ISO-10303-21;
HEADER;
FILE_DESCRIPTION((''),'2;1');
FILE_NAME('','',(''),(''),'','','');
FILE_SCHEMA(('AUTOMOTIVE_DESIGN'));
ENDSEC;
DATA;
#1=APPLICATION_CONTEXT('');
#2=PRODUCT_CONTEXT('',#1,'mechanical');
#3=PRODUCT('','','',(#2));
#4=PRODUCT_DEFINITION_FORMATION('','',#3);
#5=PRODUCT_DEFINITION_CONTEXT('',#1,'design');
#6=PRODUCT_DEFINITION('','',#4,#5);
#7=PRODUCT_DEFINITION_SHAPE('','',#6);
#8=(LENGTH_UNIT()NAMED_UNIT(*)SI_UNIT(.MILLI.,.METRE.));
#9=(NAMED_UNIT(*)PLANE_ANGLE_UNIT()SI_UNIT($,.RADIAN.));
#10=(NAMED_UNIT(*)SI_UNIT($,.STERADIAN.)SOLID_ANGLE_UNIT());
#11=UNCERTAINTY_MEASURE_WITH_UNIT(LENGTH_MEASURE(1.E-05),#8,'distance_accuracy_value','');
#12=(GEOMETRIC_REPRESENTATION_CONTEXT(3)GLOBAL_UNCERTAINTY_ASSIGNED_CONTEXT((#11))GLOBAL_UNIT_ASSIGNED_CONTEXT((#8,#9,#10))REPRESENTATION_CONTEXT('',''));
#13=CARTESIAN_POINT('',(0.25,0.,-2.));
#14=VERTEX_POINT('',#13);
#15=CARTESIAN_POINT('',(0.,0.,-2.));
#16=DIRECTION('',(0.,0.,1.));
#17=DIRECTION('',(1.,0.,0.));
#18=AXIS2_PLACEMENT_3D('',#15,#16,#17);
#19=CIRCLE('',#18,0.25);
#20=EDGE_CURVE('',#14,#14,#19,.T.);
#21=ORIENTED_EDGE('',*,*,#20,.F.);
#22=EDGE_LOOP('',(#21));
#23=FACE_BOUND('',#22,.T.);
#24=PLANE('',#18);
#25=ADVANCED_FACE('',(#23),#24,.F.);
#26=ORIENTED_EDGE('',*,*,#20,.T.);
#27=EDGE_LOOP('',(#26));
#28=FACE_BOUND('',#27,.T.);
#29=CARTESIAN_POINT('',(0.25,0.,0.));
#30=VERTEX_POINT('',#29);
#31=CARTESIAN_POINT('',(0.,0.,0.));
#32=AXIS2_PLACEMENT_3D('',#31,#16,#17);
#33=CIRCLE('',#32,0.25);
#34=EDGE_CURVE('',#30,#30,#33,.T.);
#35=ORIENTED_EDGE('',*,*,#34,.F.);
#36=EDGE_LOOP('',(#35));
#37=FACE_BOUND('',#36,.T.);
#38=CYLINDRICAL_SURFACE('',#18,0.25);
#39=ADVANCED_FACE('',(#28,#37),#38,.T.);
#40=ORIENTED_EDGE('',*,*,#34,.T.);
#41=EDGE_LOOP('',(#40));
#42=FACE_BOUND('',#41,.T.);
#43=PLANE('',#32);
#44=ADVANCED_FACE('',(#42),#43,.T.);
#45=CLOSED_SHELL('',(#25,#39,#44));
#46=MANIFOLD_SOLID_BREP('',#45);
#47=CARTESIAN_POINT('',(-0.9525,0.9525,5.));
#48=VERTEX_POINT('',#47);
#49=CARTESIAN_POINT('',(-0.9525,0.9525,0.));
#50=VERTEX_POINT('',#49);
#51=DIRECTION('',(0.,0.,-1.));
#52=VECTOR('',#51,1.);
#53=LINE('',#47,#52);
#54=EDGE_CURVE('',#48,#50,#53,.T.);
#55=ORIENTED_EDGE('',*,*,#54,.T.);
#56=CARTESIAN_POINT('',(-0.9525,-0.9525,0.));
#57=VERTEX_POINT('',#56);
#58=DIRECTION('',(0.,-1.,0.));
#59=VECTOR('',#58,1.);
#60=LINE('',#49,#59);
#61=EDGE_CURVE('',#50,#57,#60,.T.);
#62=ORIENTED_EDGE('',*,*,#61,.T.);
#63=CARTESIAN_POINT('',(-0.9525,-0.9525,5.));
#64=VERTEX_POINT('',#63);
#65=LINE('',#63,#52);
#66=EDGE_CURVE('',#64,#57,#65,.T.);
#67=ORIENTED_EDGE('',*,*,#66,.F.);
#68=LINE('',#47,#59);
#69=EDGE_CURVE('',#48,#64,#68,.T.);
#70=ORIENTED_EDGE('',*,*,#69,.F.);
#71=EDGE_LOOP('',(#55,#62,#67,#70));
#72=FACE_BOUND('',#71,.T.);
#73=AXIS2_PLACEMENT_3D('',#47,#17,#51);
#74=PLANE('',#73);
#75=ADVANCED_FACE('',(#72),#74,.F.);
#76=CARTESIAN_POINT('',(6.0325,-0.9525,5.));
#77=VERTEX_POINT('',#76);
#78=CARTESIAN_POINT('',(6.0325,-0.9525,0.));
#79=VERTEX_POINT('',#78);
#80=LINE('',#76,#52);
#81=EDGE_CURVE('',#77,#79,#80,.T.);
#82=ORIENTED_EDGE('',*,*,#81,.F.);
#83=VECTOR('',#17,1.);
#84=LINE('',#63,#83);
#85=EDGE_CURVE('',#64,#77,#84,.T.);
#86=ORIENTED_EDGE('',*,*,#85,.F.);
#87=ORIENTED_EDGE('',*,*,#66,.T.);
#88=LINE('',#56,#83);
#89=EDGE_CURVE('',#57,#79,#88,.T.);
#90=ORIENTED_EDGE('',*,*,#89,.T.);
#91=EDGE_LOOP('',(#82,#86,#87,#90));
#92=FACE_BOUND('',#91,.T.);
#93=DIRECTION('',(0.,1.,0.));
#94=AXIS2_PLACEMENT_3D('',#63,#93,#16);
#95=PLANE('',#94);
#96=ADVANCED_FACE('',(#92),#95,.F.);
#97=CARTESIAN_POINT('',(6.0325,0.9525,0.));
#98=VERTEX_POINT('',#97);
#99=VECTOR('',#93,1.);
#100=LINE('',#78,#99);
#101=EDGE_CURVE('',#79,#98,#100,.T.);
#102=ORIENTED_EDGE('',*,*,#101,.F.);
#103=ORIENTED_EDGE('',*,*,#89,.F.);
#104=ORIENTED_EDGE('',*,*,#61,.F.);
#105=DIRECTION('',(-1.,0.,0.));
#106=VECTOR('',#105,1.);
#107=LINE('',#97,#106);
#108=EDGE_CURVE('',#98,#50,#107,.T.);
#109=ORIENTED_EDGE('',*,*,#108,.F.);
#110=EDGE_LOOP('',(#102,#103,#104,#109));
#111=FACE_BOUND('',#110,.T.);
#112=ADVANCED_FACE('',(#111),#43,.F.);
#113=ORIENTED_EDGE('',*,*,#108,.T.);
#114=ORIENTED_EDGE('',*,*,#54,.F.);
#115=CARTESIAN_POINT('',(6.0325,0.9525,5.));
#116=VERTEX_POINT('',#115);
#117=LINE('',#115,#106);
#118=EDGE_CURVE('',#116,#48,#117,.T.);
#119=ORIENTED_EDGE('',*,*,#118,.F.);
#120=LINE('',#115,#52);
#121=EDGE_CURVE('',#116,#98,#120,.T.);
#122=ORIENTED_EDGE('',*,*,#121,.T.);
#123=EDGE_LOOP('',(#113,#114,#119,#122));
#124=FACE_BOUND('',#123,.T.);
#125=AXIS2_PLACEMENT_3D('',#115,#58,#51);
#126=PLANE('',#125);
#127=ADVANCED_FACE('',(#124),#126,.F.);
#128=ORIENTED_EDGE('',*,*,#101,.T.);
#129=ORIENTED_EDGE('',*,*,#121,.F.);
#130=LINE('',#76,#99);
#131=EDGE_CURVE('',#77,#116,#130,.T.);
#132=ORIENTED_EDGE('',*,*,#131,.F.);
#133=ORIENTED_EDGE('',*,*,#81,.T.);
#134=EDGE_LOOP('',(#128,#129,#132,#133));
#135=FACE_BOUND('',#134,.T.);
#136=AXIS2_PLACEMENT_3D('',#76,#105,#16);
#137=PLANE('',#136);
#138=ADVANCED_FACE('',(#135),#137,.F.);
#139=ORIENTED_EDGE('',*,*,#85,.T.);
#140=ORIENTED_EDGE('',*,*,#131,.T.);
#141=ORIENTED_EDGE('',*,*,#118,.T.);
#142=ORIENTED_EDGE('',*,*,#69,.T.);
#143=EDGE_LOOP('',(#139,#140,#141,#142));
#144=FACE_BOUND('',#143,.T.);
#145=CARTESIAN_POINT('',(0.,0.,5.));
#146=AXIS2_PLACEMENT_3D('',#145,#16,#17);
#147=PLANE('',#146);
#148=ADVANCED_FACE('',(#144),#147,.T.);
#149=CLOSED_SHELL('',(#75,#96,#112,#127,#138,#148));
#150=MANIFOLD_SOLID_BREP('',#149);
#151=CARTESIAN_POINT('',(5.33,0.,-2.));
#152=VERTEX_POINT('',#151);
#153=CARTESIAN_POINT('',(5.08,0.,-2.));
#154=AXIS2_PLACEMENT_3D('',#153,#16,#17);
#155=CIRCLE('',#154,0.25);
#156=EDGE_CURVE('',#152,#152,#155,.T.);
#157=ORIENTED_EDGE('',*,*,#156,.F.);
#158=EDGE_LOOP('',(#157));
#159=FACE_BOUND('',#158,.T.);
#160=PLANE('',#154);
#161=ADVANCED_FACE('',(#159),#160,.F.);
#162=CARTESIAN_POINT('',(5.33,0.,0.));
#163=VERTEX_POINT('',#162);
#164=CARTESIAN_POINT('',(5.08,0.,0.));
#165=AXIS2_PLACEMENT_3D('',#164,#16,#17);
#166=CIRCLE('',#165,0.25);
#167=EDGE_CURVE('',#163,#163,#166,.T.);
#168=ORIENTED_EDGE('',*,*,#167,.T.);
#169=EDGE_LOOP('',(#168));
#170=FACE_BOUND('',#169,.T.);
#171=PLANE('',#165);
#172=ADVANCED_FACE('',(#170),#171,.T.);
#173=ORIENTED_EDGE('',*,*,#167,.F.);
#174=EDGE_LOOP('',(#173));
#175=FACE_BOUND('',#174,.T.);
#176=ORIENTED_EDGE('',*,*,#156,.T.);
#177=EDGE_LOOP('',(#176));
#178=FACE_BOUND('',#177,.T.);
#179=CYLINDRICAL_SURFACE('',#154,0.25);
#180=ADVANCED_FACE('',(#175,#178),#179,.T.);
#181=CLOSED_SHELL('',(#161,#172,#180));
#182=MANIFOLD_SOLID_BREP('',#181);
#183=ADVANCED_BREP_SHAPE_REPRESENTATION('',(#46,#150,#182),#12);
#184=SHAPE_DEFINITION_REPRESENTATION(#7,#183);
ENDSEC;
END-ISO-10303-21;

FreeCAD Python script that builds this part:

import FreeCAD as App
import Part
import Sketcher
from FreeCAD import Vector


def add_polygon(sketch, points):
    """Adds a closed chain of lines whose ends are joined by coincident constraints."""
    first, n = sketch.GeometryCount, len(points)
    for a, b in zip(points, points[1:] + points[:1]):
        sketch.addGeometry(Part.LineSegment(App.Vector(*a, 0), App.Vector(*b, 0)), False)
    for i in range(n):
        sketch.addConstraint(Sketcher.Constraint("Coincident", first + i, 2, first + (i + 1) % n, 1))

doc = App.newDocument("Part")
body = doc.addObject("PartDesign::Body", "Body")

# Sketch on XY plane
sketch1 = doc.addObject("Sketcher::SketchObject", "Sketch")
body.addObject(sketch1)
sketch1.AttachmentSupport = (doc.XY_Plane, [""])
sketch1.MapMode = "FlatFace"
add_polygon(sketch1, [(-0.9525, 0.9525), (-0.9525, -0.9525), (6.0325, -0.9525), (6.0325, 0.9525)])  # lines 0-3
sketch1.addConstraint([
    Sketcher.Constraint("Vertical", 0),
    Sketcher.Constraint("Horizontal", 1),
    Sketcher.Constraint("Vertical", 2),
    Sketcher.Constraint("Horizontal", 3),
    Sketcher.Constraint("DistanceX", 1, 1, 1, 2, 6.985),
    Sketcher.Constraint("DistanceY", 0, 2, 0, 1, 1.905),
    Sketcher.Constraint("DistanceX", 0, 2, -1, 1, 0.9525),
    Sketcher.Constraint("DistanceY", 0, 2, -1, 1, 0.9525),
])
pad1 = doc.addObject("PartDesign::Pad", "Pad")
body.addObject(pad1)
pad1.Profile = sketch1
pad1.Length = 5
body2 = doc.addObject("PartDesign::Body", "Body001")

# Sketch on XY plane
sketch2 = doc.addObject("Sketcher::SketchObject", "Sketch001")
body2.addObject(sketch2)
sketch2.AttachmentSupport = (doc.getObject("XY_Plane001"), [""])
sketch2.MapMode = "FlatFace"
sketch2.addGeometry(Part.Circle(Vector(0, 0, 0), Vector(0, 0, 1), 0.25), False)
sketch2.addConstraint([
    Sketcher.Constraint("Coincident", 0, 3, -1, 1),
    Sketcher.Constraint("Diameter", 0, 0.5),
])
pad2 = doc.addObject("PartDesign::Pad", "Pad001")
body2.addObject(pad2)
pad2.Profile = sketch2
pad2.Length = 2
pad2.Reversed = True
body3 = doc.addObject("PartDesign::Body", "Body002")

# Sketch on XY plane
sketch3 = doc.addObject("Sketcher::SketchObject", "Sketch002")
body3.addObject(sketch3)
sketch3.AttachmentSupport = (doc.getObject("XY_Plane002"), [""])
sketch3.MapMode = "FlatFace"
sketch3.addGeometry(Part.Circle(Vector(5.08, 0, 0), Vector(0, 0, 1), 0.25), False)
sketch3.addConstraint([
    Sketcher.Constraint("PointOnObject", 0, 3, -1),
    Sketcher.Constraint("Diameter", 0, 0.5),
    Sketcher.Constraint("DistanceX", -1, 1, 0, 3, 5.08),
])
pad3 = doc.addObject("PartDesign::Pad", "Pad002")
body3.addObject(pad3)
pad3.Profile = sketch3
pad3.Length = 2
pad3.Reversed = True

doc.recompute()
